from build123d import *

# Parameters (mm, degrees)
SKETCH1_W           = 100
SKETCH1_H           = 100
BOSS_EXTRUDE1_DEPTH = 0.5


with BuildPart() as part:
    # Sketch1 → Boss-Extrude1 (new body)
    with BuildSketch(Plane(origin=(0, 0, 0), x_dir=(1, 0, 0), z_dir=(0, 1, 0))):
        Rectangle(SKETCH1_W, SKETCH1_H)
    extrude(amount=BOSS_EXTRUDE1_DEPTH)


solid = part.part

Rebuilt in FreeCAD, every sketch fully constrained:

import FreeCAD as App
import Part
import Sketcher

V = App.Vector


def add_polygon(sketch, points):
    """Adds a closed chain of lines whose ends are joined by coincident constraints."""
    first, n = sketch.GeometryCount, len(points)
    for a, b in zip(points, points[1:] + points[:1]):
        sketch.addGeometry(Part.LineSegment(App.Vector(*a, 0), App.Vector(*b, 0)), False)
    for i in range(n):
        sketch.addConstraint(Sketcher.Constraint("Coincident", first + i, 2, first + (i + 1) % n, 1))

doc = App.newDocument("Part")
body = doc.addObject("PartDesign::Body", "Body")

# Sketch on XZ plane
sketch1 = body.newObject("Sketcher::SketchObject", "Sketch")
sketch1.AttachmentSupport = (doc.getObject("XZ_Plane"), [""])
sketch1.MapMode = "FlatFace"
add_polygon(sketch1, [(-50, -50), (-50, 50), (50, 50), (50, -50)])  # lines 0-3
sketch1.addConstraint(Sketcher.Constraint("Vertical", 0))
sketch1.addConstraint(Sketcher.Constraint("Horizontal", 1))
sketch1.addConstraint(Sketcher.Constraint("Vertical", 2))
sketch1.addConstraint(Sketcher.Constraint("Horizontal", 3))
sketch1.addConstraint(Sketcher.Constraint("Symmetric", 0, 2, 2, 2, -1, 1))
sketch1.addConstraint(Sketcher.Constraint("Equal", 3, 0))
sketch1.addConstraint(Sketcher.Constraint("DistanceX", 1, 1, 1, 2, 100.0))
pad1 = body.newObject("PartDesign::Pad", "Pad")
pad1.Profile = sketch1
pad1.Length = 0.5
pad1.Reversed = True

doc.recompute()
